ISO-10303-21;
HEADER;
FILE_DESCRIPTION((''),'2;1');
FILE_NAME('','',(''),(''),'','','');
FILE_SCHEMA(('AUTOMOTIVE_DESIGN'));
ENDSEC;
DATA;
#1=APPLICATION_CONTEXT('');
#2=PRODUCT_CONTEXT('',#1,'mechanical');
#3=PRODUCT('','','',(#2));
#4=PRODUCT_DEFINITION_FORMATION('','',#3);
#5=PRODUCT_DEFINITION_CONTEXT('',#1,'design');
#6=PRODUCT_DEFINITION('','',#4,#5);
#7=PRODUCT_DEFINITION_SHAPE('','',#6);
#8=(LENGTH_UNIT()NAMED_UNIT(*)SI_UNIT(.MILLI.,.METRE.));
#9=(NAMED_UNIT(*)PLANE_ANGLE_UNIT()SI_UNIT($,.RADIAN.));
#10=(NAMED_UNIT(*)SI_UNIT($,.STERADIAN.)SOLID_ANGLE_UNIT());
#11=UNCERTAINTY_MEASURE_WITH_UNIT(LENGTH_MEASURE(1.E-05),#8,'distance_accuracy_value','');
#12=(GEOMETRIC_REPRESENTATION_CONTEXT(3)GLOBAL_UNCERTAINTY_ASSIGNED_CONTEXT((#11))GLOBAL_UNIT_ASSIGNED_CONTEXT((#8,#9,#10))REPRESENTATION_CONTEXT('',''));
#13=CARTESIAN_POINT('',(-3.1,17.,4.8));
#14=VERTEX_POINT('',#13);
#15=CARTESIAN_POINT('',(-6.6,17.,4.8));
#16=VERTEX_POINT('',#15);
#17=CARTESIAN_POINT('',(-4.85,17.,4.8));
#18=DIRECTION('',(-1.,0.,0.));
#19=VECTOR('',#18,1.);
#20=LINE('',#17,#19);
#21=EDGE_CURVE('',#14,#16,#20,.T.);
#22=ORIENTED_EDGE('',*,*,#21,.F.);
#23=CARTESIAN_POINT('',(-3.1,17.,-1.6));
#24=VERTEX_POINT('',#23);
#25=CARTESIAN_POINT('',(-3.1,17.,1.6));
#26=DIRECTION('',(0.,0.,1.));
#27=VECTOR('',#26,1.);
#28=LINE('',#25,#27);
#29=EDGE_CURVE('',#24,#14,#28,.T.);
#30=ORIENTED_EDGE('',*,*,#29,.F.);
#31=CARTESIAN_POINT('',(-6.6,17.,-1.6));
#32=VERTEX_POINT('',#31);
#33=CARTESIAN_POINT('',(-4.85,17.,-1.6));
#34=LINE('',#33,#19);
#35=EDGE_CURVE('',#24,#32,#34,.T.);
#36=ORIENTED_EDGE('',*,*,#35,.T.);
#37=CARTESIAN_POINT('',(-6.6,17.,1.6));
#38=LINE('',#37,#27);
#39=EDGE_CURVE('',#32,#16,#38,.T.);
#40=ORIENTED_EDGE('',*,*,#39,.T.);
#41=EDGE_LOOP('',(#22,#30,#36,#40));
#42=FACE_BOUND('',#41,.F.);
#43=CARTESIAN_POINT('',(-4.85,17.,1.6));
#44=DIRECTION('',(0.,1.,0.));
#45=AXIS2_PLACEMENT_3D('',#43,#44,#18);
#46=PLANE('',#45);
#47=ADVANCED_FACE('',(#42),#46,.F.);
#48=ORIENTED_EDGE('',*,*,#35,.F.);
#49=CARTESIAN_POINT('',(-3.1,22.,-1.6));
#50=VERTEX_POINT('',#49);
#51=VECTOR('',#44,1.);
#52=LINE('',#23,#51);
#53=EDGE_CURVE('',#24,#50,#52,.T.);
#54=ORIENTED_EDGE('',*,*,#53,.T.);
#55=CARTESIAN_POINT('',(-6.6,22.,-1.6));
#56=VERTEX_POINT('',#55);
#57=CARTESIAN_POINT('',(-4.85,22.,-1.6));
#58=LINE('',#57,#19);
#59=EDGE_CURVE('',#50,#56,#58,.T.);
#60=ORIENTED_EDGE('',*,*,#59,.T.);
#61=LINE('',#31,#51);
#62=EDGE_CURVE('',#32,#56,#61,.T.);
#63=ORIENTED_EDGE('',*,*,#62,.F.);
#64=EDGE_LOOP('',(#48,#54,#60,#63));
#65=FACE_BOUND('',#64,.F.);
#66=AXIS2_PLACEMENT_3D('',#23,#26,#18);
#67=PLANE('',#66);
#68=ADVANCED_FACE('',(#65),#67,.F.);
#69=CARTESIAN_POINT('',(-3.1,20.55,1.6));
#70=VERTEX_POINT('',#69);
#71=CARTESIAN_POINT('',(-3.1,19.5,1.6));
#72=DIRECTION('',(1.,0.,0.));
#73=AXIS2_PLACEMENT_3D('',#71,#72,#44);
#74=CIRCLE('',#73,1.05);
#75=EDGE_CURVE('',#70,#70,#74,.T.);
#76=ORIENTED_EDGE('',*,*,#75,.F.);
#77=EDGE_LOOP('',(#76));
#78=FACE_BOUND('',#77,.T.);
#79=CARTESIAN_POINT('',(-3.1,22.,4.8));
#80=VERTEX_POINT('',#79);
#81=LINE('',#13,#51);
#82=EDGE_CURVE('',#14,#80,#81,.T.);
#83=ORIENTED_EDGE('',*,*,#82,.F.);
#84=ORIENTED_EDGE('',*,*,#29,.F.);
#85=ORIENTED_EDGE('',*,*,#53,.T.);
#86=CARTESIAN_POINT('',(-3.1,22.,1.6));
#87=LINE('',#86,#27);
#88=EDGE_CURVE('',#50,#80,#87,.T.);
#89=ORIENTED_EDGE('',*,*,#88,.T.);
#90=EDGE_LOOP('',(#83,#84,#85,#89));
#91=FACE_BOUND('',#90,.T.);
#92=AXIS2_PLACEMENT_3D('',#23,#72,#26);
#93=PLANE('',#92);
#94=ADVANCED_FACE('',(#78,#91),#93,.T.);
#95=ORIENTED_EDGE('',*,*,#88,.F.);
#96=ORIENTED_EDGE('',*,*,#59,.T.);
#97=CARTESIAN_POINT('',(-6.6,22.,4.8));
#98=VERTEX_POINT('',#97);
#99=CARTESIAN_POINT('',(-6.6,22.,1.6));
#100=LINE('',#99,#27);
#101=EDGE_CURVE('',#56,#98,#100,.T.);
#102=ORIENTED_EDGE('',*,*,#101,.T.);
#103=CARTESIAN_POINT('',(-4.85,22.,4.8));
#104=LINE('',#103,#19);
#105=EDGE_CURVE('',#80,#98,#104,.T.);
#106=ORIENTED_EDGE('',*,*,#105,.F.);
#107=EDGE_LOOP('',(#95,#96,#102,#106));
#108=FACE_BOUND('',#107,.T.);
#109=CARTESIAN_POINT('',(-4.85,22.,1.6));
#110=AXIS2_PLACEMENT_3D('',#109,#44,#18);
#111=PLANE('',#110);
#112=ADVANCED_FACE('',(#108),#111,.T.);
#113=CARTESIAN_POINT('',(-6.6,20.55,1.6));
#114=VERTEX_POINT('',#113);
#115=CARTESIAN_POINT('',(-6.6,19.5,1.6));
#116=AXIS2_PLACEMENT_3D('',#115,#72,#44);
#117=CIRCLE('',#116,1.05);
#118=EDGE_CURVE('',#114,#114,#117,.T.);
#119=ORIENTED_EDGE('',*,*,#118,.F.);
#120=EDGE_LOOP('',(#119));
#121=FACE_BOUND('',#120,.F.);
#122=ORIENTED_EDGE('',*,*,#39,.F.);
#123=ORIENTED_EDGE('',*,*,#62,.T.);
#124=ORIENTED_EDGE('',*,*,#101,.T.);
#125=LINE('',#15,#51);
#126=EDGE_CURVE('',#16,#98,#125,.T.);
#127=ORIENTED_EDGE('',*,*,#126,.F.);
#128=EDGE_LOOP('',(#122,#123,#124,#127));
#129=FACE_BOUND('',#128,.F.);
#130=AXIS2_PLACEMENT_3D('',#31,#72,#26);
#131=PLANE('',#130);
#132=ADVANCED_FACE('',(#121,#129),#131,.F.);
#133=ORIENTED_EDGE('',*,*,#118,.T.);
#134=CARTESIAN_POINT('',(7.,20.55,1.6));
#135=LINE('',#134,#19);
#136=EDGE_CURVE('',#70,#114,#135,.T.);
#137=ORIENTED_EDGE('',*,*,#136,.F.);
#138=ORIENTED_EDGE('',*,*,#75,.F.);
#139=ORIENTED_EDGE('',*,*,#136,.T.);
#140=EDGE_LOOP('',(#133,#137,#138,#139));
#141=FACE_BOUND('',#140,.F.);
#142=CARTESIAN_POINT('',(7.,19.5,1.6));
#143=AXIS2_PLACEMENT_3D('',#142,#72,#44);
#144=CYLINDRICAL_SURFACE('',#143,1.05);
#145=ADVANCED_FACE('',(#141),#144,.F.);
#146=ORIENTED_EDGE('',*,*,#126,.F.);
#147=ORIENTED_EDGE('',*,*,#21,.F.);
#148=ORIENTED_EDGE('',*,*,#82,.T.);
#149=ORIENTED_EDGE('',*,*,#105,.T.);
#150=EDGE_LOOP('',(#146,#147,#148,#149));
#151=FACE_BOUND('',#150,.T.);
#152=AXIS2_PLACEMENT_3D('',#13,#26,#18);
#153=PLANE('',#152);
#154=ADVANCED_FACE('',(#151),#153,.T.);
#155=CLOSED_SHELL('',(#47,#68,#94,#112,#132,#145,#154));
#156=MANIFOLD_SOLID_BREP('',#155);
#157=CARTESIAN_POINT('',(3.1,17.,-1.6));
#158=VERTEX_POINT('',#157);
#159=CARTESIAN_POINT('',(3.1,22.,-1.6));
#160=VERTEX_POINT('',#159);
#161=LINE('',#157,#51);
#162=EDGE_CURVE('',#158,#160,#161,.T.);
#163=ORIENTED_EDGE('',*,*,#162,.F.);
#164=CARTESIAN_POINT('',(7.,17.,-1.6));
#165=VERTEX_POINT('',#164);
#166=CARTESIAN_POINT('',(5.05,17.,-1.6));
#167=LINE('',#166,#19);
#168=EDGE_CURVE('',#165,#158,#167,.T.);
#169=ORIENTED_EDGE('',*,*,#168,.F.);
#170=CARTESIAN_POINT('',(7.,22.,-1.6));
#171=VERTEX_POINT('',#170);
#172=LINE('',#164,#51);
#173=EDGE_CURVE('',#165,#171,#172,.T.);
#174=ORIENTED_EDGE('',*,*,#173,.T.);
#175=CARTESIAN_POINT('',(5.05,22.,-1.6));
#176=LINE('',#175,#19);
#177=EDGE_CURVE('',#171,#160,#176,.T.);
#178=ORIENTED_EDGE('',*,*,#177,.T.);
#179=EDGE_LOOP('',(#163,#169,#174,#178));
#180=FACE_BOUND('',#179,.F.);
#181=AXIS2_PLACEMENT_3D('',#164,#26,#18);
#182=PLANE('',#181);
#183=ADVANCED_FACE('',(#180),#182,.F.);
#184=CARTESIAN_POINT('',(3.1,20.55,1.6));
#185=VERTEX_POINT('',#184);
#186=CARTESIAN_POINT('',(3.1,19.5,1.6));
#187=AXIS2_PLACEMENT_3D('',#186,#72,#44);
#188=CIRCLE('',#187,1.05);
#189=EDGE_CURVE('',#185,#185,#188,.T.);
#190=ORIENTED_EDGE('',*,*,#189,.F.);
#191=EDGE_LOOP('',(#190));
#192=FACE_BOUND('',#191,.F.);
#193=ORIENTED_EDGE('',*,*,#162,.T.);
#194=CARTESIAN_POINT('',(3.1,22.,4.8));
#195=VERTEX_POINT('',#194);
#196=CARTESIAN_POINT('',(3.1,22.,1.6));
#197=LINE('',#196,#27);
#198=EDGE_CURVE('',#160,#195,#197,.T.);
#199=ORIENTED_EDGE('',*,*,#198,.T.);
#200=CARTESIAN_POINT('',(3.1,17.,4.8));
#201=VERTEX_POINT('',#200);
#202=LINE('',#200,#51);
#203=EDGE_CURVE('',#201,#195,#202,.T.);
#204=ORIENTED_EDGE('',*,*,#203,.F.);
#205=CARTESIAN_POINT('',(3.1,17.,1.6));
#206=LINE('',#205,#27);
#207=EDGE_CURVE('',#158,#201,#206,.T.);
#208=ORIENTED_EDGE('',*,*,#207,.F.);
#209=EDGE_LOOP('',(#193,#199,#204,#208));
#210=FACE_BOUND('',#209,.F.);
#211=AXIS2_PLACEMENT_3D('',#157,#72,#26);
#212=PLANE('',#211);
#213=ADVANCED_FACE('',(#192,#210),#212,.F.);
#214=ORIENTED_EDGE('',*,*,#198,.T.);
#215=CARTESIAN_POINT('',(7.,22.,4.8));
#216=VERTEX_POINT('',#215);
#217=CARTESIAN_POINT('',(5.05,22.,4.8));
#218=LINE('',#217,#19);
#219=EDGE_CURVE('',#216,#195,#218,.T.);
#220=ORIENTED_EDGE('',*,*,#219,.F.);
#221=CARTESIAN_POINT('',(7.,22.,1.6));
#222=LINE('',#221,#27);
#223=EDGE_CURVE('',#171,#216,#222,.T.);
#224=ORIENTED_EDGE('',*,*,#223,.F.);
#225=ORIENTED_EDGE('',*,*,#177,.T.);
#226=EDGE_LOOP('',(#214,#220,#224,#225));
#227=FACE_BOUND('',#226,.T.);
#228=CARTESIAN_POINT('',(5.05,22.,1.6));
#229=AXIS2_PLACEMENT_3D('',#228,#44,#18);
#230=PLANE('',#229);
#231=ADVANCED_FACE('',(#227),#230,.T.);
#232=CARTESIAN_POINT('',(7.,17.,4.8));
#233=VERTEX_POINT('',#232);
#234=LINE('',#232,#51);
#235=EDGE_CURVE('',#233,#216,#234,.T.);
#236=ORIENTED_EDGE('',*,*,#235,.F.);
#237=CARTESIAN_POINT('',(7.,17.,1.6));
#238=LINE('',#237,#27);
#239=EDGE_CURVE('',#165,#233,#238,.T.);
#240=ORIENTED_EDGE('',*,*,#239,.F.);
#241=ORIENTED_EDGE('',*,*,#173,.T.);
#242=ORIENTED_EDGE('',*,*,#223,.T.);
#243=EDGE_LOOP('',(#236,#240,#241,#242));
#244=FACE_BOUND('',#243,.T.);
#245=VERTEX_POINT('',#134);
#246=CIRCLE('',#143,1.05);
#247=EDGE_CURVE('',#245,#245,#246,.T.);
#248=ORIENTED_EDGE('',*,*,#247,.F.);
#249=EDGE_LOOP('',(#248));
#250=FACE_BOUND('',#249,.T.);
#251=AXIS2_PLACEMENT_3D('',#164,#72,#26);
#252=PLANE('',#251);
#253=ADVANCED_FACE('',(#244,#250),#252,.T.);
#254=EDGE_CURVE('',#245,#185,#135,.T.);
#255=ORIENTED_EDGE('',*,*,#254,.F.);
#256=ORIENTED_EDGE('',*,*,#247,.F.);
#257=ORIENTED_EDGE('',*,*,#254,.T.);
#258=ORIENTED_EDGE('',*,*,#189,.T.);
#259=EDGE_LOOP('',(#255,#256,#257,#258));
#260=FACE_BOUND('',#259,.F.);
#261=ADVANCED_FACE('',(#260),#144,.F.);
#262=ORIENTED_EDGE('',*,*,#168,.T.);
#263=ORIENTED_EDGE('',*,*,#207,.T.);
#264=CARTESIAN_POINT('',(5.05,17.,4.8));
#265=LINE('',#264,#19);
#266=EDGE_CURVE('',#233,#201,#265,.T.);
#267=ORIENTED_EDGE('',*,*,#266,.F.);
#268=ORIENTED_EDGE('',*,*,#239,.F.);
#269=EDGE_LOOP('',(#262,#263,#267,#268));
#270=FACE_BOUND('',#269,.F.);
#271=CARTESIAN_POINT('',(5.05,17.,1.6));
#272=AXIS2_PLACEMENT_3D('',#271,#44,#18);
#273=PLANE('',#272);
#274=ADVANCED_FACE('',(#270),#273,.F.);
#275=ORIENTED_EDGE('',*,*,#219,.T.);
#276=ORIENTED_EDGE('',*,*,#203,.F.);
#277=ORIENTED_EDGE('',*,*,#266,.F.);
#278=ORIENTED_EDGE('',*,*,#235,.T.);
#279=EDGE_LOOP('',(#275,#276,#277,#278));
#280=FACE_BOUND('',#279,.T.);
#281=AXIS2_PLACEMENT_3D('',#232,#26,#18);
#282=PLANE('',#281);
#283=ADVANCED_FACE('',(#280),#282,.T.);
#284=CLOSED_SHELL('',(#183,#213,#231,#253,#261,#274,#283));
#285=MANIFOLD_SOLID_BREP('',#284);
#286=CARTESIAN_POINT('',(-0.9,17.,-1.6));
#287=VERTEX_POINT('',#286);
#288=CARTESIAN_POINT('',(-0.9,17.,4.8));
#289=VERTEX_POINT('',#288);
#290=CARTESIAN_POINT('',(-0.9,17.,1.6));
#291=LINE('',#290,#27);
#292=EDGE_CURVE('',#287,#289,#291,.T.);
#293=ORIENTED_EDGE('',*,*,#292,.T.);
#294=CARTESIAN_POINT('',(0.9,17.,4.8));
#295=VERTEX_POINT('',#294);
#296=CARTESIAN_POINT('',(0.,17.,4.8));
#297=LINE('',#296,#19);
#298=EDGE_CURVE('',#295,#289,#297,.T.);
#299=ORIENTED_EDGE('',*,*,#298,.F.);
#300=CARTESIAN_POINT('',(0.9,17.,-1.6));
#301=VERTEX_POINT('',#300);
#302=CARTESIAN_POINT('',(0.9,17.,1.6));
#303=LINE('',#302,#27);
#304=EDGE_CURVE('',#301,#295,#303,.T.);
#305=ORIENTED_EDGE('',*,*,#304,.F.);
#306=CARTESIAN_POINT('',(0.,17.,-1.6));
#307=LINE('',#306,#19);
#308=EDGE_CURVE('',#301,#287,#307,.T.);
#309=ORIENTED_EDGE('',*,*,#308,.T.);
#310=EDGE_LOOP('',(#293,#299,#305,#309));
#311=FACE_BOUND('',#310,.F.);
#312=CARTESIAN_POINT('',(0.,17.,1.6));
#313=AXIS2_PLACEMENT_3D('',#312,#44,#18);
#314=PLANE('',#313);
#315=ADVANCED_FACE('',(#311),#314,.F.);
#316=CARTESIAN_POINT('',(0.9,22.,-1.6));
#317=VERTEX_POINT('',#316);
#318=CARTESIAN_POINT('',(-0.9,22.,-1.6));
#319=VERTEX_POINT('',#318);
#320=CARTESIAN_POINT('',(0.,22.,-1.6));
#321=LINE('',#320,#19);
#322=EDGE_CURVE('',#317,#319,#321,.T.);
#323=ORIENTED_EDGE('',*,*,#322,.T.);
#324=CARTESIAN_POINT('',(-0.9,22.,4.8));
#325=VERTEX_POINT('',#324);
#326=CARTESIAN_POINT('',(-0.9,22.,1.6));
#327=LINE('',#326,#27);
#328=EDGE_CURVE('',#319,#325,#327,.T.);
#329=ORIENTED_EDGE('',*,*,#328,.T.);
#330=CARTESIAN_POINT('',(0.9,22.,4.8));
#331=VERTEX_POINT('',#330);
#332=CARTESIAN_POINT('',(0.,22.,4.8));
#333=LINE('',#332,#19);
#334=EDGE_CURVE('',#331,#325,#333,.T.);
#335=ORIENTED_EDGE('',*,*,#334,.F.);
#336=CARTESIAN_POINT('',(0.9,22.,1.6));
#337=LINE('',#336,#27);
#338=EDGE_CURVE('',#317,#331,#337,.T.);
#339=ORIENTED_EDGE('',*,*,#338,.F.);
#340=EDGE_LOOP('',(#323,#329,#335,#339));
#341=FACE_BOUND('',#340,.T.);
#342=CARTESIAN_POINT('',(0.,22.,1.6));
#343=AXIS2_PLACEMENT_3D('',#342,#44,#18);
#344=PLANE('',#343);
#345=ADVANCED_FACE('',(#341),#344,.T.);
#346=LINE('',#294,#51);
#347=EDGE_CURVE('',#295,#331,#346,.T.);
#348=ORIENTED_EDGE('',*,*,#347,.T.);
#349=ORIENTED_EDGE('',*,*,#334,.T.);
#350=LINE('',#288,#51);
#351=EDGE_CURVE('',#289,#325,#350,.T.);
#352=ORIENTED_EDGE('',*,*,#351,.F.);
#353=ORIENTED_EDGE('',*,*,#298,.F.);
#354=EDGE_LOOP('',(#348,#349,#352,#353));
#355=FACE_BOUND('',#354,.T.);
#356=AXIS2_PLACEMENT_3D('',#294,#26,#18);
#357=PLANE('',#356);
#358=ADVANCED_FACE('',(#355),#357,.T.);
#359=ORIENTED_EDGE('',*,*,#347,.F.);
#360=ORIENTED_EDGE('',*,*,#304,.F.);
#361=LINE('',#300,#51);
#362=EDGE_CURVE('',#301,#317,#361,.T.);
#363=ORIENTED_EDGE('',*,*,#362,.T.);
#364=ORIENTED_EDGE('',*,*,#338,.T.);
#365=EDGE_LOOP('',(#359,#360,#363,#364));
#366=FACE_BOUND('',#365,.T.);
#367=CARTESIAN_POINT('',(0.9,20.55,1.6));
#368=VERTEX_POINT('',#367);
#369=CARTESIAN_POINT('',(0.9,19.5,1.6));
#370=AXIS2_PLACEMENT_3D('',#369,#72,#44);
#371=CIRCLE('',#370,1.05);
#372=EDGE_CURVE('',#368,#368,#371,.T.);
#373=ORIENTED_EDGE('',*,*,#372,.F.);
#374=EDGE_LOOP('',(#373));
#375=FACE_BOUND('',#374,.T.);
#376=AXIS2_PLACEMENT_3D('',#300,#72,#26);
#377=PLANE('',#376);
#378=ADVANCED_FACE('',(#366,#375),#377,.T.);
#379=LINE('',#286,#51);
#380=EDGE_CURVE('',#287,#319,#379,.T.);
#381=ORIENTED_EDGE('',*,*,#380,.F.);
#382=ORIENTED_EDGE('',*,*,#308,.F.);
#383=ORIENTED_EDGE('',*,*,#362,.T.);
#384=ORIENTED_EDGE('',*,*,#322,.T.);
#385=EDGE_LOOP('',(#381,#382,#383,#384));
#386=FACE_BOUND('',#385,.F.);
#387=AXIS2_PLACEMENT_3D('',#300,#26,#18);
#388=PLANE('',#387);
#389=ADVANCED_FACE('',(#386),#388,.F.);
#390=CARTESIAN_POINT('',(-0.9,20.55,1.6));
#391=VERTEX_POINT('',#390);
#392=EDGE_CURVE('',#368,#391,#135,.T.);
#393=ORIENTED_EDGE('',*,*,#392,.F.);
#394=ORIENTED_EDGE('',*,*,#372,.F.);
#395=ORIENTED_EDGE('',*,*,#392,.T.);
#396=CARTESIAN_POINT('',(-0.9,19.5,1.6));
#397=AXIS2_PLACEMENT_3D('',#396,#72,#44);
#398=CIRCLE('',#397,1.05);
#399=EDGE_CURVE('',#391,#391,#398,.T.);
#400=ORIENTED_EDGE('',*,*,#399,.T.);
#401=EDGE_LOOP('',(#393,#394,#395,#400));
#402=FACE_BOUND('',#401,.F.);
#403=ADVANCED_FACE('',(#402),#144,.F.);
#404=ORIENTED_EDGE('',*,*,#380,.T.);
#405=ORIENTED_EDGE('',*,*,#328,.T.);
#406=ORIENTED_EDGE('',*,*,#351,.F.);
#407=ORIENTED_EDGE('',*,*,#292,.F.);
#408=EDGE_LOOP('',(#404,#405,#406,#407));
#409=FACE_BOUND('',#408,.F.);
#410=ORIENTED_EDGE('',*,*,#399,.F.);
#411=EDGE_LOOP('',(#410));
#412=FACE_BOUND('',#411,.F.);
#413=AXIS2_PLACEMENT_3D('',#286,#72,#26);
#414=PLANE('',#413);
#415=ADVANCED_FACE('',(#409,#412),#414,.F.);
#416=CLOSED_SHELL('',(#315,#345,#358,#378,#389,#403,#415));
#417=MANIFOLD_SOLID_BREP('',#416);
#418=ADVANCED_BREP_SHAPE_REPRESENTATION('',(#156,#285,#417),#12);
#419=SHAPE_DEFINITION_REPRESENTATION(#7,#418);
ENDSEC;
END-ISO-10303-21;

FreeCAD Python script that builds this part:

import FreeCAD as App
import Part
import Sketcher
Q = App.Units.Quantity


def add_polygon(sketch, points):
    """Adds a closed chain of lines whose ends are joined by coincident constraints."""
    first, n = sketch.GeometryCount, len(points)
    for a, b in zip(points, points[1:] + points[:1]):
        sketch.addGeometry(Part.LineSegment(App.Vector(*a, 0), App.Vector(*b, 0)), False)
    for i in range(n):
        sketch.addConstraint(Sketcher.Constraint("Coincident", first + i, 2, first + (i + 1) % n, 1))

doc = App.newDocument("Part")
body = doc.addObject("PartDesign::Body", "Body")

# Sketch on YZ plane
sketch1 = doc.addObject("Sketcher::SketchObject", "Sketch")
body.addObject(sketch1)
sketch1.AttachmentSupport = (doc.YZ_Plane, [""])
sketch1.MapMode = "FlatFace"
sketch1.AttachmentOffset = App.Placement(App.Vector(0, 0, 7), App.Rotation())
sketch1.addGeometry(Part.Circle(App.Vector(19.5, 1.6, 0), App.Vector(0, 0, 1), 1.1), False)
sketch1.addConstraint([
    Sketcher.Constraint("Diameter", 0, Q("2.1 mm")),
    Sketcher.Constraint("DistanceX", -1, 1, 0, 3, Q("19.5 mm")),
    Sketcher.Constraint("DistanceY", -1, 1, 0, 3, Q("1.6 mm")),
])
pad1 = doc.addObject("PartDesign::Pad", "Pad")
body.addObject(pad1)
pad1.Profile = sketch1
pad1.Length = 13.6
pad1.Reversed = True
body2 = doc.addObject("PartDesign::Body", "Body001")
body2.AllowCompound = True

# Sketch on XY plane
sketch2 = doc.addObject("Sketcher::SketchObject", "Sketch001")
body2.addObject(sketch2)
sketch2.AttachmentSupport = (doc.getObject("XY_Plane001"), [""])
sketch2.MapMode = "FlatFace"
add_polygon(sketch2, [(-0.9, 4.8), (-0.9, -1.6), (0.9, -1.6), (0.9, 4.8)])  # lines 0-3
add_polygon(sketch2, [(-7, 4.8), (-7, -1.6), (-3.1, -1.6), (-3.1, 4.8)])  # lines 4-7
add_polygon(sketch2, [(3.1, 4.8), (3.1, -1.6), (6.6, -1.6), (6.6, 4.8)])  # lines 8-11
sketch2.addConstraint([
    Sketcher.Constraint("Vertical", 0),
    Sketcher.Constraint("Horizontal", 1),
    Sketcher.Constraint("Vertical", 2),
    Sketcher.Constraint("Horizontal", 3),
    Sketcher.Constraint("Vertical", 4),
    Sketcher.Constraint("Horizontal", 5),
    Sketcher.Constraint("Vertical", 6),
    Sketcher.Constraint("Horizontal", 7),
    Sketcher.Constraint("Vertical", 8),
    Sketcher.Constraint("Horizontal", 9),
    Sketcher.Constraint("Vertical", 10),
    Sketcher.Constraint("Horizontal", 11),
    Sketcher.Constraint("Symmetric", 5, 2, 8, 2, -2),
    Sketcher.Constraint("Horizontal", 1, 2, 4, 2),
    Sketcher.Constraint("Horizontal", 3, 2, 6, 2),
    Sketcher.Constraint("Horizontal", 7, 2, 10, 2),
    Sketcher.Constraint("DistanceX", 1, 1, 1, 2, Q("1.8 mm")),
    Sketcher.Constraint("DistanceX", 5, 1, 5, 2, Q("3.9 mm")),
    Sketcher.Constraint("DistanceX", 9, 1, 9, 2, Q("3.5 mm")),
    Sketcher.Constraint("DistanceY", 0, 2, 0, 1, Q("6.4 mm")),
    Sketcher.Constraint("DistanceX", 4, 2, -1, 1, Q("7 mm")),
    Sketcher.Constraint("DistanceX", 5, 2, 1, 2, Q("4 mm")),
    Sketcher.Constraint("DistanceY", 0, 2, -1, 1, Q("1.6 mm")),
])
pad2 = doc.addObject("PartDesign::Pad", "Pad001")
body2.addObject(pad2)
pad2.Profile = sketch2
pad2.Length = 5
body3 = doc.addObject("PartDesign::Body", "Body002")
body3.AllowCompound = True
doc.recompute()

body2.Placement = App.Placement(App.Vector(0, 0, 0), App.Rotation(App.Vector(1, 0, 0), 90))
boolean = doc.addObject("PartDesign::Boolean", "Boolean")
body3.addObject(boolean)
boolean.Type = "Fuse"
boolean.addObjects([body2])
body4 = doc.addObject("PartDesign::Body", "Body003")
body4.AllowCompound = True
doc.recompute()

body3.Placement = App.Placement(App.Vector(0, 17, 0), App.Rotation(App.Vector(0, 0, 1), 180))
boolean2 = doc.addObject("PartDesign::Boolean", "Boolean001")
body4.addObject(boolean2)
boolean2.Type = "Fuse"
boolean2.addObjects([body3])
doc.recompute()

boolean3 = doc.addObject("PartDesign::Boolean", "Boolean002")
body4.addObject(boolean3)
boolean3.Type = "Cut"
boolean3.addObjects([body])

doc.recompute()
